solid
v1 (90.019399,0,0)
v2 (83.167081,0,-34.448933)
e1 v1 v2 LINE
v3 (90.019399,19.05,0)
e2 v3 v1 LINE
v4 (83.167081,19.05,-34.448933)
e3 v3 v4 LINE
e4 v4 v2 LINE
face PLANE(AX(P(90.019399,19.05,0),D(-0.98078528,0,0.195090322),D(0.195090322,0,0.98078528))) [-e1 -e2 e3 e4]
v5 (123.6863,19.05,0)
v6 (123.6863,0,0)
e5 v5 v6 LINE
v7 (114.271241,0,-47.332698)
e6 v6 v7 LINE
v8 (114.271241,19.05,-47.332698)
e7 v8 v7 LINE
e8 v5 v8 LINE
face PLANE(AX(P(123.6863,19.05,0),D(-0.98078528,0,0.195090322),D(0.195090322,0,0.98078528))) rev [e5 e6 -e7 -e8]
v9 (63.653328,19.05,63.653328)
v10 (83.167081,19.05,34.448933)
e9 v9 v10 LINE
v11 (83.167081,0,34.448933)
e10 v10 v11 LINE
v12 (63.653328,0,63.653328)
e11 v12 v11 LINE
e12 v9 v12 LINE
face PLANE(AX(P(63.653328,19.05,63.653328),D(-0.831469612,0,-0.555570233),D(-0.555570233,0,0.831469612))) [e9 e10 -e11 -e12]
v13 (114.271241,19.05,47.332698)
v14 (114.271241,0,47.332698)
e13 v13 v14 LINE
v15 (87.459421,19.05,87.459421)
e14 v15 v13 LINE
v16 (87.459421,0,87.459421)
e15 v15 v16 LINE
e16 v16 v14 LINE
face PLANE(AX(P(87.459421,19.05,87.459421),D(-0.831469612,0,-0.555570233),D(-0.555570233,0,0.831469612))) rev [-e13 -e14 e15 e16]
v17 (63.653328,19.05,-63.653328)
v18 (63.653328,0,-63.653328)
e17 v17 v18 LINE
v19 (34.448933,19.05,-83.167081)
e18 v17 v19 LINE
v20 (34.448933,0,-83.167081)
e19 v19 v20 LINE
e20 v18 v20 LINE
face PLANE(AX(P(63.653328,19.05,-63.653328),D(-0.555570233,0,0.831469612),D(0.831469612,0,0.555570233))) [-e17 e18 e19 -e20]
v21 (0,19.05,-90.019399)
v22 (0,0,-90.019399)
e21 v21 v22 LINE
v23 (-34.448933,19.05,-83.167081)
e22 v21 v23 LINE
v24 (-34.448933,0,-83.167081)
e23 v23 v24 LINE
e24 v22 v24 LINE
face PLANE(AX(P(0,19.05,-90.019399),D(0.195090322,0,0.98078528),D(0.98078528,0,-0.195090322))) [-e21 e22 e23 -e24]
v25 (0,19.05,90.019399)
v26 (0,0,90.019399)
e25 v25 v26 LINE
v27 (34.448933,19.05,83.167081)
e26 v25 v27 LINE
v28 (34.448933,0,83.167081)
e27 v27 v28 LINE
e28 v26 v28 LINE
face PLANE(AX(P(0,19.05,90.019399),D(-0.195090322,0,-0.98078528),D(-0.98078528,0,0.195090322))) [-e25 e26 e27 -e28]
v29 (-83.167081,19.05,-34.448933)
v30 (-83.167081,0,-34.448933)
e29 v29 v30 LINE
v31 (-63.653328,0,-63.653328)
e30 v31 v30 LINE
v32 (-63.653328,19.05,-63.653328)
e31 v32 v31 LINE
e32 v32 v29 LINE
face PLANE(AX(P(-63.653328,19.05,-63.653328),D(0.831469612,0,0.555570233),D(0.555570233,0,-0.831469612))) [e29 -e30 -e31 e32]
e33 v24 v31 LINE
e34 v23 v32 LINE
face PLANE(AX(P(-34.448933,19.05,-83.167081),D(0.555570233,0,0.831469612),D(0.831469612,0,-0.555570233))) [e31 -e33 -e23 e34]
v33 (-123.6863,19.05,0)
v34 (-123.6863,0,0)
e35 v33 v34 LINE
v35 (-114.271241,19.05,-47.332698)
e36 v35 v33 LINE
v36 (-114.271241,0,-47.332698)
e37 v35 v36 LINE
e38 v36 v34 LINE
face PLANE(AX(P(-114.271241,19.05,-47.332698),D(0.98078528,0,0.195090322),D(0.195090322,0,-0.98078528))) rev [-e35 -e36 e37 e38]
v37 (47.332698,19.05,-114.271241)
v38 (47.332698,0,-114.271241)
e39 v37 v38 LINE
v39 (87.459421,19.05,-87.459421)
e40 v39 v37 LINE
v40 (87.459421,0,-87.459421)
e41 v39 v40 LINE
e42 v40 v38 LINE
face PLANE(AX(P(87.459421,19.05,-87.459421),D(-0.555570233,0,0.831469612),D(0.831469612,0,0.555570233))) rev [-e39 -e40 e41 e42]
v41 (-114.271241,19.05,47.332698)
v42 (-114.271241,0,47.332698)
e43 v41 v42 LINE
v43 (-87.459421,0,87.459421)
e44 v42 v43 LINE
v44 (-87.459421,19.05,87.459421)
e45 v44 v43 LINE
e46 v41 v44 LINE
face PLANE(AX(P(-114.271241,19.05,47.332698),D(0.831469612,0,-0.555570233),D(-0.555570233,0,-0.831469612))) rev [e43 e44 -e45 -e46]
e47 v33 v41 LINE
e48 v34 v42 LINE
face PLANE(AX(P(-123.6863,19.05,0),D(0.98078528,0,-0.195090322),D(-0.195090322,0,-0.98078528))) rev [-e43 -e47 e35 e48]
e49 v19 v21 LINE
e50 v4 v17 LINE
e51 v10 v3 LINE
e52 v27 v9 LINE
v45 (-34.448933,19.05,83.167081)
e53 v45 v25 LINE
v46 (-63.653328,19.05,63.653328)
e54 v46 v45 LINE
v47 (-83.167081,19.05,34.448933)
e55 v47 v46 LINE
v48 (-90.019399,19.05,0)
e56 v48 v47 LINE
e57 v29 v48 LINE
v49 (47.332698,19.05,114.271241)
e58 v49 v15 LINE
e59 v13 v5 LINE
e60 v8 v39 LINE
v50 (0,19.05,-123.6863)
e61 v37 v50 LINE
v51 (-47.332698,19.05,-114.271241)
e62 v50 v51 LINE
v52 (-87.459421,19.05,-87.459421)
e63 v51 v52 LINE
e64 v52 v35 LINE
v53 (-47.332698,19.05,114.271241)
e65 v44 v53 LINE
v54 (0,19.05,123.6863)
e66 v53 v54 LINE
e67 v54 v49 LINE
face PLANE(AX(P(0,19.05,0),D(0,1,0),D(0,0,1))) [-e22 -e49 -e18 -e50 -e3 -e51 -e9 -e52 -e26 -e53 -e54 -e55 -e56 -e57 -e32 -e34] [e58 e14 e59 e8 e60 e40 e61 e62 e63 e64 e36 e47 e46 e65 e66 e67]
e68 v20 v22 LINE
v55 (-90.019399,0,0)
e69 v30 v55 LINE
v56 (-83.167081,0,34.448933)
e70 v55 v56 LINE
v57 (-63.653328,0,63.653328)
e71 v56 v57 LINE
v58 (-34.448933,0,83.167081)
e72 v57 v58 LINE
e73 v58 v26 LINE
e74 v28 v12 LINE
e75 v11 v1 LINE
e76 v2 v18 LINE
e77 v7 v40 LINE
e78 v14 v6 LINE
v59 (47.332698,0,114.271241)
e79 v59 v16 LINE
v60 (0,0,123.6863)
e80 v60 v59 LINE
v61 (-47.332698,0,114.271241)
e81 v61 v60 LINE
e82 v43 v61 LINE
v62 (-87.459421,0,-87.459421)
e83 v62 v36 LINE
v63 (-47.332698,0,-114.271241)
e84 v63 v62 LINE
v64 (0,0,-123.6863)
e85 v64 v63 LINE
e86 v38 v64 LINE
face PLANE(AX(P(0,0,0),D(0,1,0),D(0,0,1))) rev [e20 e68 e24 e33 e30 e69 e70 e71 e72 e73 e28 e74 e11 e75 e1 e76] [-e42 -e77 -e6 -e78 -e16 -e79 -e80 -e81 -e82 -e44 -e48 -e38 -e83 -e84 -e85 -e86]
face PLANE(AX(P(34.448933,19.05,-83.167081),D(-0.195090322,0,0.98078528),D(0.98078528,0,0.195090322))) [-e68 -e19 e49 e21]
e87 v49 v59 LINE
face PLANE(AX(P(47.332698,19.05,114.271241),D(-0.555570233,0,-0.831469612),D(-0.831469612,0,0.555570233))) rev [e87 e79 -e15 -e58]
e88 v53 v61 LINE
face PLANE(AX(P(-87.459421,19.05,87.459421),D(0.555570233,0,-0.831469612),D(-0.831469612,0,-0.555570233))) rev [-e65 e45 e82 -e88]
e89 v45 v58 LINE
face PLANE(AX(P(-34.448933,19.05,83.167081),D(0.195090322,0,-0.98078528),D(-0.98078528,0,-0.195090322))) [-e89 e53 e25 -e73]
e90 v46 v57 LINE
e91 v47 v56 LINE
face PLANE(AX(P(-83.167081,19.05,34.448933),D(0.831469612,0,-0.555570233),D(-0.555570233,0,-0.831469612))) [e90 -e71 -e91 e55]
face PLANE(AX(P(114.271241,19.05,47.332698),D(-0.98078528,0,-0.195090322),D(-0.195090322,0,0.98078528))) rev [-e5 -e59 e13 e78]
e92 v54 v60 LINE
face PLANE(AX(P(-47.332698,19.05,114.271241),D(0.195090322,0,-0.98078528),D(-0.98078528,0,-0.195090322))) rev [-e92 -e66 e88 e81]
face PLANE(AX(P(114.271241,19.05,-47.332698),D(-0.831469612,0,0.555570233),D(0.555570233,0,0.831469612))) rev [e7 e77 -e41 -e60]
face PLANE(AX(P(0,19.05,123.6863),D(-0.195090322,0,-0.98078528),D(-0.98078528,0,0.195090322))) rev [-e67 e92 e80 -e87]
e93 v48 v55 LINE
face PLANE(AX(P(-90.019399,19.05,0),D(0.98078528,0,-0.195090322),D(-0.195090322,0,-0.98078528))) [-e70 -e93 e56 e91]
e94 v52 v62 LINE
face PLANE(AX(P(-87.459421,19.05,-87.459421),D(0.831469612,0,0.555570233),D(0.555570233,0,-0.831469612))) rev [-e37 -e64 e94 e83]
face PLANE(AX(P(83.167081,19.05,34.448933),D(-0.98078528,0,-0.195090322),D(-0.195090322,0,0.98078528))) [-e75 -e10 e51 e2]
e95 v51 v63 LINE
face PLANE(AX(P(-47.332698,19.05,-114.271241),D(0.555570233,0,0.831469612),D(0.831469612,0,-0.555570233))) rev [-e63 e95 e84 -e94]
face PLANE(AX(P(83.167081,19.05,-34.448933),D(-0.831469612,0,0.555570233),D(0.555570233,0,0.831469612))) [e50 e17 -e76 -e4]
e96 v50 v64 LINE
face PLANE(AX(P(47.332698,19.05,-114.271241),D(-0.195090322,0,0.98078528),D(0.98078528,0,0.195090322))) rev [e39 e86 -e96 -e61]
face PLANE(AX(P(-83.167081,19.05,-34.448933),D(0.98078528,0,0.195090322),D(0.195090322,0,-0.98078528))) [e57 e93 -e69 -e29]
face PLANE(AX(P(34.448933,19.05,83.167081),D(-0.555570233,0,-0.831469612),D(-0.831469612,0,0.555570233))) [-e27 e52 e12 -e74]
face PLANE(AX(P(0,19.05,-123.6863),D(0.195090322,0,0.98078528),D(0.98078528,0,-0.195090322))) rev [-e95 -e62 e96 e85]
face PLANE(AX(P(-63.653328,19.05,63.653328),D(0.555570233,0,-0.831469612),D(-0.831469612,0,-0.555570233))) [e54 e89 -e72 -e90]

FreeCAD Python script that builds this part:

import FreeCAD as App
import Part
import Sketcher

V = App.Vector
Q = App.Units.Quantity

doc = App.newDocument("Part")
body = doc.addObject("PartDesign::Body", "Body")

# Sketch on XZ plane
sketch1 = doc.addObject("Sketcher::SketchObject", "Sketch")
body.addObject(sketch1)
sketch1.AttachmentSupport = (doc.XZ_Plane, [""])
sketch1.MapMode = "FlatFace"
sketch1.addGeometry([
    Part.LineSegment(V(124, 0, 0), V(114, -47, 0)),  # 0
    Part.LineSegment(V(114, -47, 0), V(87, -87, 0)),  # 1
    Part.LineSegment(V(87, -87, 0), V(47, -114, 0)),  # 2
    Part.LineSegment(V(47, -114, 0), V(0, -124, 0)),  # 3
    Part.LineSegment(V(0, -124, 0), V(-47, -114, 0)),  # 4
    Part.LineSegment(V(-47, -114, 0), V(-87, -87, 0)),  # 5
    Part.LineSegment(V(-87, -87, 0), V(-114, -47, 0)),  # 6
    Part.LineSegment(V(-114, -47, 0), V(-124, 0, 0)),  # 7
    Part.LineSegment(V(-124, 0, 0), V(-114, 47, 0)),  # 8
    Part.LineSegment(V(-114, 47, 0), V(-87, 87, 0)),  # 9
    Part.LineSegment(V(-87, 87, 0), V(-47, 114, 0)),  # 10
    Part.LineSegment(V(-47, 114, 0), V(0, 124, 0)),  # 11
    Part.LineSegment(V(0, 124, 0), V(47, 114, 0)),  # 12
    Part.LineSegment(V(47, 114, 0), V(87, 87, 0)),  # 13
    Part.LineSegment(V(87, 87, 0), V(114, 47, 0)),  # 14
    Part.LineSegment(V(114, 47, 0), V(124, 0, 0)),  # 15
    Part.LineSegment(V(83, -34, 0), V(90, 0, 0)),  # 16
    Part.LineSegment(V(90, 0, 0), V(83, 34, 0)),  # 17
    Part.LineSegment(V(83, 34, 0), V(64, 64, 0)),  # 18
    Part.LineSegment(V(64, 64, 0), V(34, 83, 0)),  # 19
    Part.LineSegment(V(34, 83, 0), V(0, 90, 0)),  # 20
    Part.LineSegment(V(0, 90, 0), V(-34, 83, 0)),  # 21
    Part.LineSegment(V(-34, 83, 0), V(-64, 64, 0)),  # 22
    Part.LineSegment(V(-64, 64, 0), V(-83, 34, 0)),  # 23
    Part.LineSegment(V(-83, 34, 0), V(-90, 0, 0)),  # 24
    Part.LineSegment(V(-90, 0, 0), V(-83, -34, 0)),  # 25
    Part.LineSegment(V(-83, -34, 0), V(-64, -64, 0)),  # 26
    Part.LineSegment(V(-64, -64, 0), V(-34, -83, 0)),  # 27
    Part.LineSegment(V(-34, -83, 0), V(0, -90, 0)),  # 28
    Part.LineSegment(V(0, -90, 0), V(34, -83, 0)),  # 29
    Part.LineSegment(V(34, -83, 0), V(64, -64, 0)),  # 30
    Part.LineSegment(V(64, -64, 0), V(83, -34, 0)),  # 31
], False)
sketch1.addConstraint([
    Sketcher.Constraint("Coincident", 0, 2, 1, 1),
    Sketcher.Constraint("Coincident", 1, 2, 2, 1),
    Sketcher.Constraint("Coincident", 2, 2, 3, 1),
    Sketcher.Constraint("Coincident", 3, 2, 4, 1),
    Sketcher.Constraint("Coincident", 4, 2, 5, 1),
    Sketcher.Constraint("Coincident", 5, 2, 6, 1),
    Sketcher.Constraint("Coincident", 6, 2, 7, 1),
    Sketcher.Constraint("Coincident", 7, 2, 8, 1),
    Sketcher.Constraint("Coincident", 8, 2, 9, 1),
    Sketcher.Constraint("Coincident", 9, 2, 10, 1),
    Sketcher.Constraint("Coincident", 10, 2, 11, 1),
    Sketcher.Constraint("Coincident", 11, 2, 12, 1),
    Sketcher.Constraint("Coincident", 12, 2, 13, 1),
    Sketcher.Constraint("Coincident", 13, 2, 14, 1),
    Sketcher.Constraint("Coincident", 14, 2, 15, 1),
    Sketcher.Constraint("Coincident", 15, 2, 0, 1),
    Sketcher.Constraint("Coincident", 16, 2, 17, 1),
    Sketcher.Constraint("Coincident", 17, 2, 18, 1),
    Sketcher.Constraint("Coincident", 18, 2, 19, 1),
    Sketcher.Constraint("Coincident", 19, 2, 20, 1),
    Sketcher.Constraint("Coincident", 20, 2, 21, 1),
    Sketcher.Constraint("Coincident", 21, 2, 22, 1),
    Sketcher.Constraint("Coincident", 22, 2, 23, 1),
    Sketcher.Constraint("Coincident", 23, 2, 24, 1),
    Sketcher.Constraint("Coincident", 24, 2, 25, 1),
    Sketcher.Constraint("Coincident", 25, 2, 26, 1),
    Sketcher.Constraint("Coincident", 26, 2, 27, 1),
    Sketcher.Constraint("Coincident", 27, 2, 28, 1),
    Sketcher.Constraint("Coincident", 28, 2, 29, 1),
    Sketcher.Constraint("Coincident", 29, 2, 30, 1),
    Sketcher.Constraint("Coincident", 30, 2, 31, 1),
    Sketcher.Constraint("Coincident", 31, 2, 16, 1),
    Sketcher.Constraint("Symmetric", 0, 2, 8, 2, -1, 1),
    Sketcher.Constraint("Symmetric", 1, 2, 9, 2, -1, 1),
    Sketcher.Constraint("Symmetric", 2, 2, 10, 2, -1, 1),
    Sketcher.Constraint("Symmetric", 3, 2, 11, 2, -1, 1),
    Sketcher.Constraint("Symmetric", 4, 2, 12, 2, -1, 1),
    Sketcher.Constraint("Symmetric", 5, 2, 13, 2, -1, 1),
    Sketcher.Constraint("Symmetric", 6, 2, 14, 2, -1, 1),
    Sketcher.Constraint("Symmetric", 7, 2, 15, 2, -1, 1),
    Sketcher.Constraint("Symmetric", 16, 2, 24, 2, -1, 1),
    Sketcher.Constraint("Symmetric", 17, 2, 25, 2, -1, 1),
    Sketcher.Constraint("Symmetric", 18, 2, 26, 2, -1, 1),
    Sketcher.Constraint("Symmetric", 19, 2, 27, 2, -1, 1),
    Sketcher.Constraint("Symmetric", 20, 2, 28, 2, -1, 1),
    Sketcher.Constraint("Symmetric", 21, 2, 29, 2, -1, 1),
    Sketcher.Constraint("Symmetric", 22, 2, 30, 2, -1, 1),
    Sketcher.Constraint("Symmetric", 23, 2, 31, 2, -1, 1),
    Sketcher.Constraint("Symmetric", 2, 2, 4, 2, -2),
    Sketcher.Constraint("Symmetric", 1, 2, 5, 2, -2),
    Sketcher.Constraint("Symmetric", 0, 2, 6, 2, -2),
    Sketcher.Constraint("Symmetric", 19, 2, 21, 2, -2),
    Sketcher.Constraint("Symmetric", 18, 2, 22, 2, -2),
    Sketcher.Constraint("Symmetric", 17, 2, 23, 2, -2),
    Sketcher.Constraint("PointOnObject", 3, 2, -2),
    Sketcher.Constraint("PointOnObject", 7, 2, -1),
    Sketcher.Constraint("PointOnObject", 16, 2, -1),
    Sketcher.Constraint("PointOnObject", 20, 2, -2),
    Sketcher.Constraint("Perpendicular", 0, 4),
    Sketcher.Constraint("Perpendicular", 1, 5),
    Sketcher.Constraint("Perpendicular", 12, 16),
    Sketcher.Constraint("Parallel", 14, 18),
    Sketcher.Constraint("Parallel", 13, 19),
    Sketcher.Constraint("Perpendicular", 16, 20),
    Sketcher.Constraint("Equal", 0, 1),
    Sketcher.Constraint("Equal", 1, 2),
    Sketcher.Constraint("Equal", 2, 3),
    Sketcher.Constraint("Equal", 17, 18),
    Sketcher.Constraint("Equal", 18, 19),
    Sketcher.Constraint("Equal", 19, 20),
    Sketcher.Constraint("Distance", 0, Q("1.9 in")),
    Sketcher.Constraint("Angle", 0, Q("-101.25 deg")),
    Sketcher.Constraint("Angle", 1, Q("-123.75 deg")),
    Sketcher.Constraint("DistanceX", -1, 1, 16, 2, 90.019399),
])
pad1 = doc.addObject("PartDesign::Pad", "Pad")
body.addObject(pad1)
pad1.Profile = sketch1
pad1.Length = Q("0.75 in")
pad1.Reversed = True

doc.recompute()
